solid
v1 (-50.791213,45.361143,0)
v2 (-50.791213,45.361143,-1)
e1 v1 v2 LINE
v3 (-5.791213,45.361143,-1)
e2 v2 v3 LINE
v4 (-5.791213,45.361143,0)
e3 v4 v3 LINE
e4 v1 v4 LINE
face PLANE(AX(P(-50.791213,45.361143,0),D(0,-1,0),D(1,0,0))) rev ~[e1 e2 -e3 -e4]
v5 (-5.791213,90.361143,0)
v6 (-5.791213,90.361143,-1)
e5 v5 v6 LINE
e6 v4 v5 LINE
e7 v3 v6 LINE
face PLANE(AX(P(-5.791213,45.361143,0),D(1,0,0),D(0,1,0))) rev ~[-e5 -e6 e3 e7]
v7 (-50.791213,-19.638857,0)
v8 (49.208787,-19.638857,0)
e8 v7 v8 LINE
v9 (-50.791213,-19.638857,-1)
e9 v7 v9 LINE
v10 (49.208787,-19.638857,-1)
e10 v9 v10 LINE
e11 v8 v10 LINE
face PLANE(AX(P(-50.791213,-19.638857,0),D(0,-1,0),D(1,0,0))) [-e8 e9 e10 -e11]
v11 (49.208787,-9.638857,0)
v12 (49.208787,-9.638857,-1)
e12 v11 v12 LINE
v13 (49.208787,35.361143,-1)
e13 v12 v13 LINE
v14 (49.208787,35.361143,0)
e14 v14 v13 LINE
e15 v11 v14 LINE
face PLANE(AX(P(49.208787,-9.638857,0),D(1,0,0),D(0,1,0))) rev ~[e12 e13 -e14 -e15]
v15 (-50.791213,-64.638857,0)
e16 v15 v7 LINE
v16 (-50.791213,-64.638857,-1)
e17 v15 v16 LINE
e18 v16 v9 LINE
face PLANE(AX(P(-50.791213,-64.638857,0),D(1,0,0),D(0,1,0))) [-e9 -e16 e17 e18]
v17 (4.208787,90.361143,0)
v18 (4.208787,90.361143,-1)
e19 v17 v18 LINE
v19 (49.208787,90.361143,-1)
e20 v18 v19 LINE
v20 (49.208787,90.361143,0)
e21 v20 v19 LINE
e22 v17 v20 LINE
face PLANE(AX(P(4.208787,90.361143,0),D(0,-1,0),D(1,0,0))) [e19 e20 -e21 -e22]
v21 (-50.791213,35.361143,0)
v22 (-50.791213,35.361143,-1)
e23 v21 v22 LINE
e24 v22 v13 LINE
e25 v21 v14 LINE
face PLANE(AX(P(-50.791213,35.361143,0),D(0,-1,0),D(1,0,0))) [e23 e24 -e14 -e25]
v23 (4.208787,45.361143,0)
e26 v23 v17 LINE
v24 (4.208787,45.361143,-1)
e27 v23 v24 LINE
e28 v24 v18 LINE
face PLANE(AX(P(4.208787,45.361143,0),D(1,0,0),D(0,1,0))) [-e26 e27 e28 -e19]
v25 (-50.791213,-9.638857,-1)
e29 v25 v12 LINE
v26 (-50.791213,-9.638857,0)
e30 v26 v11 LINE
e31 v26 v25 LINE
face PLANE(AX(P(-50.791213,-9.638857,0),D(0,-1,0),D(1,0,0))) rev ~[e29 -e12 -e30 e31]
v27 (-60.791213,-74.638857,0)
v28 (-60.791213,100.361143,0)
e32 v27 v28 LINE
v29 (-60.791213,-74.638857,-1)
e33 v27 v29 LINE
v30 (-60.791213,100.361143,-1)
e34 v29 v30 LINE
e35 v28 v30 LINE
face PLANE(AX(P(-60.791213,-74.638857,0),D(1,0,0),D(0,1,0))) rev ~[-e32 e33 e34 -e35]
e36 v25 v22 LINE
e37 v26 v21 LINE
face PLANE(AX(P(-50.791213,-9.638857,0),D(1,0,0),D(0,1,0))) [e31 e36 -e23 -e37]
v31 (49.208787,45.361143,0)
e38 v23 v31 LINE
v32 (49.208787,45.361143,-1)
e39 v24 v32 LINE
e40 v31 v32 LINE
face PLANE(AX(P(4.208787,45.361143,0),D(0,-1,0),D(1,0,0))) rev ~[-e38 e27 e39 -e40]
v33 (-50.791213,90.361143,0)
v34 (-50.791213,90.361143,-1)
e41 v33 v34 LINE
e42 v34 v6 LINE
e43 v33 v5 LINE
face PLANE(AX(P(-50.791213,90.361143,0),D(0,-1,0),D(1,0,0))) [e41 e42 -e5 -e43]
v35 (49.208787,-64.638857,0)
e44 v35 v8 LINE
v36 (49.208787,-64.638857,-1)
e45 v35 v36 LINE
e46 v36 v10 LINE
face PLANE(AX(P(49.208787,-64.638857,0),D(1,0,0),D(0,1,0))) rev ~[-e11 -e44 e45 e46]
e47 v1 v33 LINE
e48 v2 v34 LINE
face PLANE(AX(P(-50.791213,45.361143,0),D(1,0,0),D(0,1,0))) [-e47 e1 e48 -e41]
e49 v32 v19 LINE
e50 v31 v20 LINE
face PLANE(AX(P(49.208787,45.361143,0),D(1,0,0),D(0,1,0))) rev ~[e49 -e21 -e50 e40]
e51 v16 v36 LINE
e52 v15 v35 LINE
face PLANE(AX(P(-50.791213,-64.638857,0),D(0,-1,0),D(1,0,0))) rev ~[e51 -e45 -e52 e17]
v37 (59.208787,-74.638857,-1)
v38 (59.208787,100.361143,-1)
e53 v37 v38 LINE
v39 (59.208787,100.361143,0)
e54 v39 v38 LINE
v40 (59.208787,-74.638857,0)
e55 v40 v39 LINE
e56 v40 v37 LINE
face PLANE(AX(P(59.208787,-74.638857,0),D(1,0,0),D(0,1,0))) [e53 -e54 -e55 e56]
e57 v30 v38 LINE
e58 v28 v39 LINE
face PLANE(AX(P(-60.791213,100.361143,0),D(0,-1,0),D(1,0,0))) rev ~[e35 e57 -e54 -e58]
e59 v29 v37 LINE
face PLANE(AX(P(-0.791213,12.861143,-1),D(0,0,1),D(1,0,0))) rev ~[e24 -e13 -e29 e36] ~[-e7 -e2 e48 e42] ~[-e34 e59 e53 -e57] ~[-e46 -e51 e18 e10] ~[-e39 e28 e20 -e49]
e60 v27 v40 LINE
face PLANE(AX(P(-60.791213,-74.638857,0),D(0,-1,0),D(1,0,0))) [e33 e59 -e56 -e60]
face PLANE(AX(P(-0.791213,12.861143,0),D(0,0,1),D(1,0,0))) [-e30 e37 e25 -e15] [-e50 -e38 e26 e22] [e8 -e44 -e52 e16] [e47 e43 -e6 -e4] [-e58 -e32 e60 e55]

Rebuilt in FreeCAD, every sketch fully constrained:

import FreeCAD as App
import Part
import Sketcher
from FreeCAD import Vector

doc = App.newDocument("Part")
params = doc.addObject("Spreadsheet::Sheet", "Params")
for row, (alias, value) in enumerate([
    ("sketch1_width", "120 mm"),
    ("sketch1_width2", "100 mm"),
    ("sketch1_width3", "45 mm"),
    ("sketch1_height", "175 mm"),
    ("pad1_length", "1 mm"),
], start=1):
    params.set(f"A{row}", alias)
    params.set(f"B{row}", "=" + value)
    params.setAlias(f"B{row}", alias)

body = doc.addObject("PartDesign::Body", "Body")

# Sketch on XY plane
sketch1 = body.newObject("Sketcher::SketchObject", "Sketch")
sketch1.AttachmentSupport = (doc.getObject("XY_Plane"), [""])
sketch1.MapMode = "FlatFace"
sketch1.addGeometry([
    Part.LineSegment(Vector(-61, 100, 0), Vector(-61, -75, 0)),  # 0
    Part.LineSegment(Vector(-61, -75, 0), Vector(59, -75, 0)),  # 1
    Part.LineSegment(Vector(59, -75, 0), Vector(59, 100, 0)),  # 2
    Part.LineSegment(Vector(59, 100, 0), Vector(-61, 100, 0)),  # 3
    Part.LineSegment(Vector(49, -65, 0), Vector(-51, -65, 0)),  # 4
    Part.LineSegment(Vector(-51, -65, 0), Vector(-51, -20, 0)),  # 5
    Part.LineSegment(Vector(-51, -20, 0), Vector(49, -20, 0)),  # 6
    Part.LineSegment(Vector(49, -20, 0), Vector(49, -65, 0)),  # 7
    Part.LineSegment(Vector(-6, 45, 0), Vector(-51, 45, 0)),  # 8
    Part.LineSegment(Vector(-51, 45, 0), Vector(-51, 90, 0)),  # 9
    Part.LineSegment(Vector(-51, 90, 0), Vector(-6, 90, 0)),  # 10
    Part.LineSegment(Vector(-6, 90, 0), Vector(-6, 45, 0)),  # 11
    Part.LineSegment(Vector(49, -10, 0), Vector(-51, -10, 0)),  # 12
    Part.LineSegment(Vector(-51, -10, 0), Vector(-51, 35, 0)),  # 13
    Part.LineSegment(Vector(-51, 35, 0), Vector(49, 35, 0)),  # 14
    Part.LineSegment(Vector(49, 35, 0), Vector(49, -10, 0)),  # 15
    Part.LineSegment(Vector(49, 45, 0), Vector(4, 45, 0)),  # 16
    Part.LineSegment(Vector(4, 45, 0), Vector(4, 90, 0)),  # 17
    Part.LineSegment(Vector(4, 90, 0), Vector(49, 90, 0)),  # 18
    Part.LineSegment(Vector(49, 90, 0), Vector(49, 45, 0)),  # 19
], False)
sketch1.addConstraint([
    Sketcher.Constraint("Coincident", 0, 2, 1, 1),
    Sketcher.Constraint("Coincident", 1, 2, 2, 1),
    Sketcher.Constraint("Coincident", 2, 2, 3, 1),
    Sketcher.Constraint("Coincident", 3, 2, 0, 1),
    Sketcher.Constraint("Coincident", 4, 2, 5, 1),
    Sketcher.Constraint("Coincident", 5, 2, 6, 1),
    Sketcher.Constraint("Coincident", 6, 2, 7, 1),
    Sketcher.Constraint("Coincident", 7, 2, 4, 1),
    Sketcher.Constraint("Coincident", 8, 2, 9, 1),
    Sketcher.Constraint("Coincident", 9, 2, 10, 1),
    Sketcher.Constraint("Coincident", 10, 2, 11, 1),
    Sketcher.Constraint("Coincident", 11, 2, 8, 1),
    Sketcher.Constraint("Coincident", 12, 2, 13, 1),
    Sketcher.Constraint("Coincident", 13, 2, 14, 1),
    Sketcher.Constraint("Coincident", 14, 2, 15, 1),
    Sketcher.Constraint("Coincident", 15, 2, 12, 1),
    Sketcher.Constraint("Coincident", 16, 2, 17, 1),
    Sketcher.Constraint("Coincident", 17, 2, 18, 1),
    Sketcher.Constraint("Coincident", 18, 2, 19, 1),
    Sketcher.Constraint("Coincident", 19, 2, 16, 1),
    Sketcher.Constraint("Vertical", 0),
    Sketcher.Constraint("Horizontal", 1),
    Sketcher.Constraint("Vertical", 2),
    Sketcher.Constraint("Horizontal", 3),
    Sketcher.Constraint("Horizontal", 4),
    Sketcher.Constraint("Vertical", 5),
    Sketcher.Constraint("Horizontal", 6),
    Sketcher.Constraint("Vertical", 7),
    Sketcher.Constraint("Horizontal", 8),
    Sketcher.Constraint("Vertical", 9),
    Sketcher.Constraint("Horizontal", 10),
    Sketcher.Constraint("Vertical", 11),
    Sketcher.Constraint("Horizontal", 12),
    Sketcher.Constraint("Vertical", 13),
    Sketcher.Constraint("Horizontal", 14),
    Sketcher.Constraint("Vertical", 15),
    Sketcher.Constraint("Horizontal", 16),
    Sketcher.Constraint("Vertical", 17),
    Sketcher.Constraint("Horizontal", 18),
    Sketcher.Constraint("Vertical", 19),
    Sketcher.Constraint("Horizontal", 11, 2, 16, 2),
    Sketcher.Constraint("Horizontal", 10, 2, 17, 2),
    Sketcher.Constraint("Vertical", 5, 2, 8, 2),
    Sketcher.Constraint("Vertical", 9, 2, 12, 2),
    Sketcher.Constraint("Vertical", 7, 2, 14, 2),
    Sketcher.Constraint("Vertical", 15, 2, 18, 2),
    Sketcher.Constraint("Equal", 10, 16),
    Sketcher.Constraint("Equal", 18, 5),
    Sketcher.Constraint("Equal", 7, 9),
    Sketcher.Constraint("Equal", 11, 13),
    Sketcher.Constraint("DistanceX", 1, 1, 1, 2, 120.0),
    Sketcher.Constraint("DistanceX", 4, 2, 4, 1, 100.0),
    Sketcher.Constraint("DistanceX", 8, 2, 8, 1, 45.0),
    Sketcher.Constraint("DistanceY", 0, 2, 0, 1, 175.0),
    Sketcher.Constraint("DistanceX", 0, 2, 4, 2, 10.0),
    Sketcher.Constraint("DistanceY", 0, 2, 4, 2, 10.0),
    Sketcher.Constraint("DistanceY", 8, 2, 3, 2, 55.0),
    Sketcher.Constraint("DistanceY", 5, 2, 12, 2, 10.0),
    Sketcher.Constraint("DistanceX", 0, 2, -1, 1, 60.791213),
    Sketcher.Constraint("DistanceY", 0, 2, -1, 1, 74.638857),
])
sketch1.setExpression("Constraints[50]", "Params.sketch1_width")
sketch1.setExpression("Constraints[51]", "Params.sketch1_width2")
sketch1.setExpression("Constraints[52]", "Params.sketch1_width3")
sketch1.setExpression("Constraints[53]", "Params.sketch1_height")
pad1 = body.newObject("PartDesign::Pad", "Pad")
pad1.Profile = sketch1
pad1.setExpression("Length", "Params.pad1_length")
pad1.Reversed = True

doc.recompute()
